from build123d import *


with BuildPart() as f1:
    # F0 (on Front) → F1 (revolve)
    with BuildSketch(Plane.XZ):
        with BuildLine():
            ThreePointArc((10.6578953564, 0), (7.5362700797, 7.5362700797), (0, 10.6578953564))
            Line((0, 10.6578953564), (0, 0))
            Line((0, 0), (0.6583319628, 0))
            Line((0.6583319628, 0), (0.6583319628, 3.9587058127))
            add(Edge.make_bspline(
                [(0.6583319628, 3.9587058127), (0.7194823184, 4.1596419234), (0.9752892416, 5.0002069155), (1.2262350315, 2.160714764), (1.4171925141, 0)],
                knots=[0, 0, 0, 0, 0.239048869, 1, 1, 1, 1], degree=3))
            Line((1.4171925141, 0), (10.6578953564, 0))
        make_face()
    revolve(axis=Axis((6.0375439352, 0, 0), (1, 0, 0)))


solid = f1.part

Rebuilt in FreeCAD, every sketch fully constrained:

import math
import FreeCAD as App
import Part
import Sketcher

V = App.Vector
Q = App.Units.Quantity

doc = App.newDocument("Part")
body = doc.addObject("PartDesign::Body", "Body")

sketch1 = body.newObject("Sketcher::SketchObject", "Sketch")
sketch1.AttachmentSupport = (doc.getObject("XZ_Plane"), [""])
sketch1.MapMode = "FlatFace"
sketch1.addGeometry([
    Part.ArcOfCircle(Part.Circle(V(0, 0, 0), V(0, 0, 1), 10.657895), math.radians(0), math.radians(90)),
    Part.LineSegment(V(0, 10.657895, 0), V(0, 0, 0)),
    Part.LineSegment(V(0, 0, 0), V(0.658332, 0, 0)),
    Part.LineSegment(V(0.658332, 0, 0), V(0.658332, 3.958706, 0)),
    Part.BSplineCurve([V(0.658332, 3.958706, 0), V(0.719482, 4.159642, 0), V(0.975289, 5.000207, 0), V(1.226235, 2.160715, 0), V(1.417193, 0, 0)], [4, 1, 4], [0, 0.239048869, 1], False, 3, [1, 1, 1, 1, 1], False),
    Part.LineSegment(V(1.417193, 0, 0), V(10.657895, 0, 0)),
], False)
sketch1.addConstraint([
    Sketcher.Constraint("Block", 4),
    Sketcher.Constraint("Coincident", 0, 2, 1, 1),
    Sketcher.Constraint("Coincident", 1, 2, 2, 1),
    Sketcher.Constraint("Coincident", 2, 2, 3, 1),
    Sketcher.Constraint("Coincident", 3, 2, 4, 1),
    Sketcher.Constraint("Coincident", 4, 2, 5, 1),
    Sketcher.Constraint("Coincident", 5, 2, 0, 1),
    Sketcher.Constraint("Vertical", 1),
    Sketcher.Constraint("Horizontal", 2),
    Sketcher.Constraint("Vertical", 3),
    Sketcher.Constraint("Horizontal", 5),
    Sketcher.Constraint("Coincident", 0, 3, -1, 1),
    Sketcher.Constraint("Coincident", 1, 2, -1, 1),
    Sketcher.Constraint("Radius", 0, Q("10.657895 mm")),
])
revolution = body.newObject("PartDesign::Revolution", "Revolution")
revolution.Profile = sketch1
revolution.ReferenceAxis = (sketch1, ["H_Axis"])
revolution.Angle = 360

doc.recompute()
